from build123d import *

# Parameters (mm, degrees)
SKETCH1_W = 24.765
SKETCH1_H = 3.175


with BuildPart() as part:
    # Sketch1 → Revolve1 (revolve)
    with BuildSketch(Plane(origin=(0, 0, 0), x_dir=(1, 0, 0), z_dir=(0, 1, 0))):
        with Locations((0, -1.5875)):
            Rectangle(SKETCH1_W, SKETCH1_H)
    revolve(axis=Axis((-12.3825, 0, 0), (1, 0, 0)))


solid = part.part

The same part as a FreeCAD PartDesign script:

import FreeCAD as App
import Part
import Sketcher
from FreeCAD import Vector
Q = App.Units.Quantity

doc = App.newDocument("Part")
body = doc.addObject("PartDesign::Body", "Body")

sketch1 = body.newObject("Sketcher::SketchObject", "Sketch")
sketch1.AttachmentSupport = (doc.getObject("XZ_Plane"), [""])
sketch1.MapMode = "FlatFace"
sketch1.addGeometry([
    Part.LineSegment(Vector(-12.4, 0, 0), Vector(-12.4, 3.2, 0)),
    Part.LineSegment(Vector(-12.4, 3.2, 0), Vector(12.4, 3.2, 0)),
    Part.LineSegment(Vector(12.4, 3.2, 0), Vector(12.4, 0, 0)),
    Part.LineSegment(Vector(12.4, 0, 0), Vector(-12.4, 0, 0)),
], False)
sketch1.addConstraint([
    Sketcher.Constraint("Coincident", 0, 2, 1, 1),
    Sketcher.Constraint("Coincident", 1, 2, 2, 1),
    Sketcher.Constraint("Coincident", 2, 2, 3, 1),
    Sketcher.Constraint("Coincident", 3, 2, 0, 1),
    Sketcher.Constraint("Vertical", 0),
    Sketcher.Constraint("Horizontal", 1),
    Sketcher.Constraint("Vertical", 2),
    Sketcher.Constraint("Horizontal", 3),
    Sketcher.Constraint("Symmetric", 2, 2, 3, 2, -1, 1),
    Sketcher.Constraint("DistanceX", 1, 1, 1, 2, Q("0.975 in")),
    Sketcher.Constraint("DistanceY", 0, 1, 0, 2, Q("0.125 in")),
])
revolution = body.newObject("PartDesign::Revolution", "Revolution")
revolution.Profile = sketch1
revolution.ReferenceAxis = (sketch1, ["H_Axis"])
revolution.Angle = 360

doc.recompute()
